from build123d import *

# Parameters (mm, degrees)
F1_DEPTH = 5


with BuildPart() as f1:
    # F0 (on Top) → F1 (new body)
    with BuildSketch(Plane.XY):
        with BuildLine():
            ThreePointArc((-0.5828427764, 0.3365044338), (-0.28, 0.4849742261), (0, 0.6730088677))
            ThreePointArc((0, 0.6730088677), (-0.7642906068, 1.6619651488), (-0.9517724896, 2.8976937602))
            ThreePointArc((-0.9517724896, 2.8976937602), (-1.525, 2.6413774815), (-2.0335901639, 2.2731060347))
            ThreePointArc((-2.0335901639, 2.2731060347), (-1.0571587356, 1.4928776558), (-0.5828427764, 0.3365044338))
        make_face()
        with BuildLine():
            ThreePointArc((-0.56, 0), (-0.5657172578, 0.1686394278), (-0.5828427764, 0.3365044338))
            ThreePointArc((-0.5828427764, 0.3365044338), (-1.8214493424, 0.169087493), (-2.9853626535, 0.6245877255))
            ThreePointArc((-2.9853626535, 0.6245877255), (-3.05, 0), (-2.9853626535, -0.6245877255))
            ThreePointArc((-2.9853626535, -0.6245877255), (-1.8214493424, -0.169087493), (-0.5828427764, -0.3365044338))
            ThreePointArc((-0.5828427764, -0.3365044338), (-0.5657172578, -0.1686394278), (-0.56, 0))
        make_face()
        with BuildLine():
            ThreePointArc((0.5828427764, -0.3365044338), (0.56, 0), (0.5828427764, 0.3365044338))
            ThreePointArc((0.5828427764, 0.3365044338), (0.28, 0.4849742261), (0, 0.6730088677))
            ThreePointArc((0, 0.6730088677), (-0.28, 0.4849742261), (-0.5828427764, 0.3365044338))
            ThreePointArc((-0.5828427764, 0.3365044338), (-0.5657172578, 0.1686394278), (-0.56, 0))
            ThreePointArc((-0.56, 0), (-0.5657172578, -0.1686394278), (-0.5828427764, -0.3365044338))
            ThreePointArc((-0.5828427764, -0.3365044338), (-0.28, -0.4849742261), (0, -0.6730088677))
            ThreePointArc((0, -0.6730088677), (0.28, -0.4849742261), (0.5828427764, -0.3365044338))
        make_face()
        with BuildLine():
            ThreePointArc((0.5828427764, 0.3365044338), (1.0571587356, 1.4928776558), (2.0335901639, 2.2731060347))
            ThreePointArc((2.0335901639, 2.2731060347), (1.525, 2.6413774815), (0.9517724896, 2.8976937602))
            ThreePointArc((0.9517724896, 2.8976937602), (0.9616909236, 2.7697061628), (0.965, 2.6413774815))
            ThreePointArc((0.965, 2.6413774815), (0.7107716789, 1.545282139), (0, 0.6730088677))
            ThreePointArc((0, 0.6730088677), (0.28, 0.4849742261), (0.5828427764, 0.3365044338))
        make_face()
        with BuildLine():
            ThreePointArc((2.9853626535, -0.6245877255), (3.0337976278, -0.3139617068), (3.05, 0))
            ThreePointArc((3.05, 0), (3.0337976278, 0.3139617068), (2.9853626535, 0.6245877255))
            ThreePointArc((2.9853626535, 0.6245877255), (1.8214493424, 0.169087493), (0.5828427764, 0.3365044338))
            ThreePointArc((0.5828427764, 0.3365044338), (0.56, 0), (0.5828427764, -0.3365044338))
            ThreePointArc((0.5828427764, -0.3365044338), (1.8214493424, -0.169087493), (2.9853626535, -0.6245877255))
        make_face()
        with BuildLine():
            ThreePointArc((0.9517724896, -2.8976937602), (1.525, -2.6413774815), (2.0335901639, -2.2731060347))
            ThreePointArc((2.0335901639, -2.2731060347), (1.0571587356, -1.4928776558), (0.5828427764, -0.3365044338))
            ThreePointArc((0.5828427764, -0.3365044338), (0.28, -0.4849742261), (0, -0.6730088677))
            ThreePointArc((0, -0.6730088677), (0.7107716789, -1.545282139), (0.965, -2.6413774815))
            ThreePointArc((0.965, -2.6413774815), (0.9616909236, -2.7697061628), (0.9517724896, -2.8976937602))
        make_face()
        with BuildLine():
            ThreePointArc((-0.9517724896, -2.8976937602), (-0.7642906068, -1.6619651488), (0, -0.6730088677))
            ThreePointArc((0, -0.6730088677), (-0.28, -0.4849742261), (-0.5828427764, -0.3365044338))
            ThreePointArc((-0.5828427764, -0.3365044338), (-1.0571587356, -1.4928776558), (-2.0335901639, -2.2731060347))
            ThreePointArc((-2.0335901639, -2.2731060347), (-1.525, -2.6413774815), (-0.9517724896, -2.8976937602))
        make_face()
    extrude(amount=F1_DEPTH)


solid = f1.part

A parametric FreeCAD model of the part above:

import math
import FreeCAD as App
import Part
import Sketcher

V = App.Vector

doc = App.newDocument("Part")
body = doc.addObject("PartDesign::Body", "Body")

sketch1 = body.newObject("Sketcher::SketchObject", "Sketch")
sketch1.AttachmentSupport = (doc.getObject("XY_Plane"), [""])
sketch1.MapMode = "FlatFace"
sketch1.addGeometry(Part.ArcOfCircle(Part.Circle(V(1.52, 2.64, 0), V(0, 0, 1), 2.49), math.radians(174), math.radians(232)), False)
sketch1.addGeometry(Part.ArcOfCircle(Part.Circle(V(0, 0, 0), V(0, 0, 1), 3.05), math.radians(108), math.radians(132)), False)
sketch1.addGeometry(Part.ArcOfCircle(Part.Circle(V(-3.05, 0, 0), V(0, 0, 1), 2.49), math.radians(8), math.radians(66)), False)
sketch1.addGeometry(Part.ArcOfCircle(Part.Circle(V(-1.52, 2.64, 0), V(0, 0, 1), 2.49), math.radians(-126), math.radians(-68)), False)
sketch1.addGeometry(Part.ArcOfCircle(Part.Circle(V(0, 0, 0), V(0, 0, 1), 3.05), math.radians(168), math.radians(192)), False)
sketch1.addGeometry(Part.ArcOfCircle(Part.Circle(V(-1.52, -2.64, 0), V(0, 0, 1), 2.49), math.radians(68), math.radians(126)), False)
sketch1.addGeometry(Part.ArcOfCircle(Part.Circle(V(-3.05, 0, 0), V(0, 0, 1), 2.49), math.radians(-66), math.radians(-8)), False)
sketch1.addGeometry(Part.ArcOfCircle(Part.Circle(V(0, 0, 0), V(0, 0, 1), 3.05), math.radians(-132), math.radians(-108)), False)
sketch1.addGeometry(Part.ArcOfCircle(Part.Circle(V(1.52, -2.64, 0), V(0, 0, 1), 2.49), math.radians(128), math.radians(186)), False)
sketch1.addGeometry(Part.ArcOfCircle(Part.Circle(V(-1.52, -2.64, 0), V(0, 0, 1), 2.49), math.radians(0), math.radians(52)), False)
sketch1.addGeometry(Part.ArcOfCircle(Part.Circle(V(-1.53, -2.64, 0), V(0, 0, 1), 2.49), math.radians(-5.91), math.radians(0)), False)
sketch1.addGeometry(Part.ArcOfCircle(Part.Circle(V(0, 0, 0), V(0, 0, 1), 3.05), math.radians(-72), math.radians(-48)), False)
sketch1.addGeometry(Part.ArcOfCircle(Part.Circle(V(3.05, 0, 0), V(0, 0, 1), 2.49), math.radians(-172), math.radians(-114)), False)
sketch1.addGeometry(Part.ArcOfCircle(Part.Circle(V(1.52, -2.64, 0), V(0, 0, 1), 2.49), math.radians(54), math.radians(112)), False)
sketch1.addGeometry(Part.ArcOfCircle(Part.Circle(V(0, 0, 0), V(0, 0, 1), 3.05), math.radians(-11.82), math.radians(0)), False)
sketch1.addGeometry(Part.ArcOfCircle(Part.Circle(V(0, 0, 0), V(0, 0, 1), 3.05), math.radians(0), math.radians(11.82)), False)
sketch1.addGeometry(Part.ArcOfCircle(Part.Circle(V(1.52, 2.64, 0), V(0, 0, 1), 2.49), math.radians(-112), math.radians(-54)), False)
sketch1.addGeometry(Part.ArcOfCircle(Part.Circle(V(3.05, 0, 0), V(0, 0, 1), 2.49), math.radians(114), math.radians(172)), False)
sketch1.addGeometry(Part.ArcOfCircle(Part.Circle(V(0, 0, 0), V(0, 0, 1), 3.05), math.radians(48), math.radians(72)), False)
sketch1.addGeometry(Part.ArcOfCircle(Part.Circle(V(-1.53, 2.64, 0), V(0, 0, 1), 2.49), math.radians(0), math.radians(5.91)), False)
sketch1.addGeometry(Part.ArcOfCircle(Part.Circle(V(-1.52, 2.64, 0), V(0, 0, 1), 2.49), math.radians(-52), math.radians(0)), False)
sketch1.addConstraint(Sketcher.Constraint("Coincident", 0, 1, 1, 1))
sketch1.addConstraint(Sketcher.Constraint("Coincident", 1, 2, 2, 2))
sketch1.addConstraint(Sketcher.Constraint("Coincident", 2, 1, 3, 2))
sketch1.addConstraint(Sketcher.Constraint("Coincident", 3, 1, 4, 1))
sketch1.addConstraint(Sketcher.Constraint("Coincident", 4, 2, 5, 2))
sketch1.addConstraint(Sketcher.Constraint("Coincident", 5, 1, 6, 2))
sketch1.addConstraint(Sketcher.Constraint("Coincident", 6, 1, 7, 1))
sketch1.addConstraint(Sketcher.Constraint("Coincident", 7, 2, 8, 2))
sketch1.addConstraint(Sketcher.Constraint("Coincident", 8, 1, 9, 2))
sketch1.addConstraint(Sketcher.Constraint("Tangent", 9, 1, 10, 2))
sketch1.addConstraint(Sketcher.Constraint("Coincident", 10, 1, 11, 1))
sketch1.addConstraint(Sketcher.Constraint("Coincident", 11, 2, 12, 2))
sketch1.addConstraint(Sketcher.Constraint("Coincident", 12, 1, 13, 2))
sketch1.addConstraint(Sketcher.Constraint("Coincident", 13, 1, 14, 1))
sketch1.addConstraint(Sketcher.Constraint("Tangent", 14, 2, 15, 1))
sketch1.addConstraint(Sketcher.Constraint("Coincident", 15, 2, 16, 2))
sketch1.addConstraint(Sketcher.Constraint("Coincident", 16, 1, 17, 2))
sketch1.addConstraint(Sketcher.Constraint("Coincident", 17, 1, 18, 1))
sketch1.addConstraint(Sketcher.Constraint("Coincident", 18, 2, 19, 2))
sketch1.addConstraint(Sketcher.Constraint("Tangent", 19, 1, 20, 2))
sketch1.addConstraint(Sketcher.Constraint("Coincident", 20, 1, 0, 2))
sketch1.addConstraint(Sketcher.Constraint("Coincident", 1, 3, -1, 1))
sketch1.addConstraint(Sketcher.Constraint("Coincident", 4, 3, -1, 1))
sketch1.addConstraint(Sketcher.Constraint("Coincident", 7, 3, -1, 1))
sketch1.addConstraint(Sketcher.Constraint("Coincident", 11, 3, -1, 1))
sketch1.addConstraint(Sketcher.Constraint("Coincident", 14, 3, -1, 1))
sketch1.addConstraint(Sketcher.Constraint("Coincident", 18, 3, -1, 1))
sketch1.addConstraint(Sketcher.Constraint("Coincident", 6, 3, 2, 3))
sketch1.addConstraint(Sketcher.Constraint("Coincident", 9, 3, 5, 3))
sketch1.addConstraint(Sketcher.Constraint("Coincident", 13, 3, 8, 3))
sketch1.addConstraint(Sketcher.Constraint("Coincident", 16, 3, 0, 3))
sketch1.addConstraint(Sketcher.Constraint("Coincident", 17, 3, 12, 3))
sketch1.addConstraint(Sketcher.Constraint("Coincident", 19, 3, 3, 3))
sketch1.addConstraint(Sketcher.Constraint("Coincident", 14, 2, 12, 3))
sketch1.addConstraint(Sketcher.Constraint("Equal", 0, 2))
sketch1.addConstraint(Sketcher.Constraint("Equal", 2, 3))
sketch1.addConstraint(Sketcher.Constraint("Equal", 1, 4))
sketch1.addConstraint(Sketcher.Constraint("Equal", 3, 5))
sketch1.addConstraint(Sketcher.Constraint("Equal", 5, 6))
sketch1.addConstraint(Sketcher.Constraint("Equal", 4, 7))
sketch1.addConstraint(Sketcher.Constraint("Equal", 6, 8))
sketch1.addConstraint(Sketcher.Constraint("Equal", 8, 9))
sketch1.addConstraint(Sketcher.Constraint("Equal", 9, 10))
sketch1.addConstraint(Sketcher.Constraint("Equal", 7, 11))
sketch1.addConstraint(Sketcher.Constraint("Equal", 10, 12))
sketch1.addConstraint(Sketcher.Constraint("Equal", 12, 13))
sketch1.addConstraint(Sketcher.Constraint("Equal", 11, 14))
sketch1.addConstraint(Sketcher.Constraint("Equal", 14, 15))
sketch1.addConstraint(Sketcher.Constraint("Equal", 13, 16))
sketch1.addConstraint(Sketcher.Constraint("Equal", 16, 17))
sketch1.addConstraint(Sketcher.Constraint("Equal", 15, 18))
sketch1.addConstraint(Sketcher.Constraint("Equal", 17, 19))
sketch1.addConstraint(Sketcher.Constraint("Equal", 19, 20))
sketch1.addConstraint(Sketcher.Constraint("Symmetric", 0, 3, 5, 3, -1, 1))
sketch1.addConstraint(Sketcher.Constraint("Symmetric", 3, 3, 8, 3, -1, 1))
sketch1.addConstraint(Sketcher.Constraint("Symmetric", 2, 3, 12, 3, -1, 1))
sketch1.addConstraint(Sketcher.Constraint("Symmetric", 0, 3, 3, 3, -2))
sketch1.addConstraint(Sketcher.Constraint("PointOnObject", 2, 3, -1))
sketch1.addConstraint(Sketcher.Constraint("Horizontal", 13, 3, 9, 1))
sketch1.addConstraint(Sketcher.Constraint("Horizontal", 20, 3, 19, 1))
sketch1.addConstraint(Sketcher.Constraint("Radius", 0, 2.49))
sketch1.addConstraint(Sketcher.Constraint("Radius", 1, 3.05))
sketch1.addConstraint(Sketcher.Constraint("DistanceX", 3, 3, 0, 3, 3.05))
sketch1.addConstraint(Sketcher.Constraint("DistanceY", 6, 1, 5, 1, 1.936602))
pad1 = body.newObject("PartDesign::Pad", "Pad")
pad1.Profile = sketch1
pad1.Length = 5

doc.recompute()
